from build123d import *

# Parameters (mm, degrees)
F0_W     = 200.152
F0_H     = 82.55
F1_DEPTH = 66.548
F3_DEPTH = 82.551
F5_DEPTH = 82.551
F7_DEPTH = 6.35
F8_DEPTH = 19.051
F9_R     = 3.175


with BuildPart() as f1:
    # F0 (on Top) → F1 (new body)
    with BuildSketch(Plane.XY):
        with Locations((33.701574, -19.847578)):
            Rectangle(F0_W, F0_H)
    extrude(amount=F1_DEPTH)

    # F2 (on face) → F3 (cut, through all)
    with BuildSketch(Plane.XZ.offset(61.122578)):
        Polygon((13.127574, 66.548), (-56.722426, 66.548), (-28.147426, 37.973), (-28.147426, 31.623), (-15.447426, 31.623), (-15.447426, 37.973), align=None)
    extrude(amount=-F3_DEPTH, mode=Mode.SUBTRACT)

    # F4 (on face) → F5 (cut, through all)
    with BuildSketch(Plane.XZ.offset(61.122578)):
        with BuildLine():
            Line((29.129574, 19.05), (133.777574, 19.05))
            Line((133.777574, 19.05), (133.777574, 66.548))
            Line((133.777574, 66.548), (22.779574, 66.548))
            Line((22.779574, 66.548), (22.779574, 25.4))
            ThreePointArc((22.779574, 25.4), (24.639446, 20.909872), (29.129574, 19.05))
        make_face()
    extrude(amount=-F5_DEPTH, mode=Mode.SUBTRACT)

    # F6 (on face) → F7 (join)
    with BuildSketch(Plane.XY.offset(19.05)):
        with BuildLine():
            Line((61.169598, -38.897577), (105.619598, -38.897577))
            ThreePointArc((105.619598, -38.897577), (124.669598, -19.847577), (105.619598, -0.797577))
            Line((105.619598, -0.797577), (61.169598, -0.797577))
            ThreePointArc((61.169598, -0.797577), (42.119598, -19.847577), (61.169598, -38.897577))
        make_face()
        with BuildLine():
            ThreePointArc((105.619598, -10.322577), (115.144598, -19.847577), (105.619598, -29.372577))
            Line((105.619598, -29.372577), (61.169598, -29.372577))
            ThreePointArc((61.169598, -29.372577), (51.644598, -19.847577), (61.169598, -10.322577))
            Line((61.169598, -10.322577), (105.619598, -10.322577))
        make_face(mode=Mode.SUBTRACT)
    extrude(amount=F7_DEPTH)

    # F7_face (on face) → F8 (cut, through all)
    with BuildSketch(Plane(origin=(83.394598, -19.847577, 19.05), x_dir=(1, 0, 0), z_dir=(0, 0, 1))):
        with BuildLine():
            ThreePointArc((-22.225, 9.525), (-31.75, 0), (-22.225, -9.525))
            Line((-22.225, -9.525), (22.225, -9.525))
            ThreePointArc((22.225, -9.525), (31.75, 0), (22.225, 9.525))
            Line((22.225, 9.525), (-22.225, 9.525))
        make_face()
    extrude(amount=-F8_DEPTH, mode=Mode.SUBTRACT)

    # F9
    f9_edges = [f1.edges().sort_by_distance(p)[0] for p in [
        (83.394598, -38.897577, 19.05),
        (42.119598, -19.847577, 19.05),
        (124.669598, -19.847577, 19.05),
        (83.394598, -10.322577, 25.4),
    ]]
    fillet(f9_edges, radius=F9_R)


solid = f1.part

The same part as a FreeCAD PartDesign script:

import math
import FreeCAD as App
import Part
import Sketcher
Q = App.Units.Quantity


def edges_at(feature, points):
    """Names of the edges that pass closest to the given points."""
    edges = feature.Shape.Edges
    near = lambda p: min(range(len(edges)), key=lambda i: edges[i].distToShape(Part.Vertex(*p))[0])
    return sorted({f"Edge{near(p) + 1}" for p in points})


def add_polygon(sketch, points):
    """Adds a closed chain of lines whose ends are joined by coincident constraints."""
    first, n = sketch.GeometryCount, len(points)
    for a, b in zip(points, points[1:] + points[:1]):
        sketch.addGeometry(Part.LineSegment(App.Vector(*a, 0), App.Vector(*b, 0)), False)
    for i in range(n):
        sketch.addConstraint(Sketcher.Constraint("Coincident", first + i, 2, first + (i + 1) % n, 1))

doc = App.newDocument("Part")
params = doc.addObject("Spreadsheet::Sheet", "Params")
for row, (alias, value) in enumerate([
    ("sketch1_width", "7.88 in"),
    ("sketch1_height", "3.25 in"),
    ("pad1_length", "2.62 in"),
    ("sketch2_width", "0.5 in"),
    ("sketch2_width2", "2.75 in"),
    ("sketch2_height", "0.25 in"),
    ("sketch3_radius", "0.25 in"),
    ("sketch3_width", "4.12 in"),
    ("sketch3_height", "1.87 in"),
    ("sketch4_radius", "0.75 in"),
    ("sketch4_radius2", "0.375 in"),
    ("sketch4_width", "1.75 in"),
    ("pad2_length", "0.25 in"),
    ("sketch5_radius", "0.375 in"),
    ("sketch5_width", "1.75 in"),
    ("fillet_radius", "0.125 in"),
], start=1):
    params.set(f"A{row}", alias)
    params.set(f"B{row}", "=" + value)
    params.setAlias(f"B{row}", alias)

body = doc.addObject("PartDesign::Body", "Body")

# Sketch on XY plane
sketch1 = body.newObject("Sketcher::SketchObject", "Sketch")
sketch1.AttachmentSupport = (doc.getObject("XY_Plane"), [""])
sketch1.MapMode = "FlatFace"
add_polygon(sketch1, [(-66, 21), (-66, -61), (134, -61), (134, 21)])  # lines 0-3
sketch1.addConstraint([
    Sketcher.Constraint("Vertical", 0),
    Sketcher.Constraint("Horizontal", 1),
    Sketcher.Constraint("Vertical", 2),
    Sketcher.Constraint("Horizontal", 3),
    Sketcher.Constraint("DistanceX", 1, 1, 1, 2, Q("7.88 in")),
    Sketcher.Constraint("DistanceY", 0, 2, 0, 1, Q("3.25 in")),
    Sketcher.Constraint("DistanceY", -1, 1, 2, 2, 21.427422),
    Sketcher.Constraint("DistanceX", 0, 2, -1, 1, 66.374426),
])
sketch1.setExpression("Constraints[8]", "Params.sketch1_width")
sketch1.setExpression("Constraints[9]", "Params.sketch1_height")
pad1 = body.newObject("PartDesign::Pad", "Pad")
pad1.Profile = sketch1
pad1.setExpression("Length", "Params.pad1_length")

# Sketch on XZ plane
sketch2 = body.newObject("Sketcher::SketchObject", "Sketch001")
sketch2.AttachmentSupport = (doc.getObject("XZ_Plane"), [""])
sketch2.MapMode = "FlatFace"
sketch2.AttachmentOffset = App.Placement(App.Vector(0, 0, 61.122578), App.Rotation())
add_polygon(sketch2, [(13, 67), (-57, 67), (-28, 38), (-28, 32), (-15, 32), (-15, 38)])  # lines 0-5
sketch2.addConstraint([
    Sketcher.Constraint("Horizontal", 0),
    Sketcher.Constraint("Vertical", 2),
    Sketcher.Constraint("Horizontal", 3),
    Sketcher.Constraint("Vertical", 4),
    Sketcher.Constraint("Perpendicular", 1, 5),
    Sketcher.Constraint("Horizontal", 1, 2, 4, 2),
    Sketcher.Constraint("Equal", 1, 5),
    Sketcher.Constraint("DistanceX", 3, 1, 3, 2, Q("0.5 in")),
    Sketcher.Constraint("DistanceX", 0, 2, 0, 1, Q("2.75 in")),
    Sketcher.Constraint("DistanceY", 2, 2, 2, 1, Q("0.25 in")),
    Sketcher.Constraint("DistanceY", -1, 1, 0, 2, Q("2.62 in")),
    Sketcher.Constraint("DistanceX", 0, 2, -1, 1, 56.722426),
])
sketch2.setExpression("Constraints[13]", "Params.sketch2_width")
sketch2.setExpression("Constraints[14]", "Params.sketch2_width2")
sketch2.setExpression("Constraints[15]", "Params.sketch2_height")
pocket1 = body.newObject("PartDesign::Pocket", "Pocket")
pocket1.Profile = sketch2
pocket1.Type = "ThroughAll"

# Sketch on XZ plane
sketch3 = body.newObject("Sketcher::SketchObject", "Sketch002")
sketch3.AttachmentSupport = (doc.getObject("XZ_Plane"), [""])
sketch3.MapMode = "FlatFace"
sketch3.AttachmentOffset = App.Placement(App.Vector(0, 0, 61.122578), App.Rotation())
sketch3.addGeometry([
    Part.LineSegment(App.Vector(29, 19, 0), App.Vector(134, 19, 0)),  # 0
    Part.LineSegment(App.Vector(134, 19, 0), App.Vector(134, 67, 0)),  # 1
    Part.LineSegment(App.Vector(134, 67, 0), App.Vector(23, 67, 0)),  # 2
    Part.LineSegment(App.Vector(23, 67, 0), App.Vector(23, 25, 0)),  # 3
    Part.ArcOfCircle(Part.Circle(App.Vector(29, 25, 0), App.Vector(0, 0, 1), 6), math.radians(-180), math.radians(-90)),  # 4
], False)
sketch3.addConstraint([
    Sketcher.Constraint("Coincident", 0, 2, 1, 1),
    Sketcher.Constraint("Coincident", 1, 2, 2, 1),
    Sketcher.Constraint("Coincident", 2, 2, 3, 1),
    Sketcher.Constraint("Tangent", 3, 2, 4, 1),
    Sketcher.Constraint("Tangent", 4, 2, 0, 1),
    Sketcher.Constraint("Horizontal", 0),
    Sketcher.Constraint("Vertical", 1),
    Sketcher.Constraint("Horizontal", 2),
    Sketcher.Constraint("Vertical", 3),
    Sketcher.Constraint("Radius", 4, Q("0.25 in")),
    Sketcher.Constraint("DistanceY", -1, 1, 4, 3, Q("1 in")),
    Sketcher.Constraint("DistanceX", 0, 1, 0, 2, Q("4.12 in")),
    Sketcher.Constraint("DistanceY", 1, 1, 1, 2, Q("1.87 in")),
    Sketcher.Constraint("DistanceX", -1, 1, 4, 3, 29.129574),
])
sketch3.setExpression("Constraints[9]", "Params.sketch3_radius")
sketch3.setExpression("Constraints[11]", "Params.sketch3_width")
sketch3.setExpression("Constraints[12]", "Params.sketch3_height")
pocket2 = body.newObject("PartDesign::Pocket", "Pocket001")
pocket2.Profile = sketch3
pocket2.Type = "ThroughAll"

# Sketch on XY plane
sketch4 = body.newObject("Sketcher::SketchObject", "Sketch003")
sketch4.AttachmentSupport = (doc.getObject("XY_Plane"), [""])
sketch4.MapMode = "FlatFace"
sketch4.AttachmentOffset = App.Placement(App.Vector(0, 0, 0.75 * 25.4), App.Rotation())
sketch4.addGeometry([
    Part.LineSegment(App.Vector(61, -39, 0), App.Vector(106, -39, 0)),  # 0
    Part.ArcOfCircle(Part.Circle(App.Vector(106, -20, 0), App.Vector(0, 0, 1), 19), math.radians(-90), math.radians(90)),  # 1
    Part.LineSegment(App.Vector(106, -1, 0), App.Vector(61, -1, 0)),  # 2
    Part.ArcOfCircle(Part.Circle(App.Vector(61, -20, 0), App.Vector(0, 0, 1), 19), math.radians(90), math.radians(270)),  # 3
    Part.LineSegment(App.Vector(61, -10, 0), App.Vector(106, -10, 0)),  # 4
    Part.ArcOfCircle(Part.Circle(App.Vector(106, -20, 0), App.Vector(0, 0, 1), 10), math.radians(-90), math.radians(90)),  # 5
    Part.LineSegment(App.Vector(106, -29, 0), App.Vector(61, -29, 0)),  # 6
    Part.ArcOfCircle(Part.Circle(App.Vector(61, -20, 0), App.Vector(0, 0, 1), 10), math.radians(90), math.radians(270)),  # 7
], False)
sketch4.addConstraint([
    Sketcher.Constraint("Tangent", 0, 2, 1, 1),
    Sketcher.Constraint("Tangent", 1, 2, 2, 1),
    Sketcher.Constraint("Tangent", 2, 2, 3, 1),
    Sketcher.Constraint("Tangent", 3, 2, 0, 1),
    Sketcher.Constraint("Tangent", 4, 2, 5, 2),
    Sketcher.Constraint("Tangent", 5, 1, 6, 1),
    Sketcher.Constraint("Tangent", 6, 2, 7, 2),
    Sketcher.Constraint("Tangent", 7, 1, 4, 1),
    Sketcher.Constraint("Horizontal", 0),
    Sketcher.Constraint("Horizontal", 2),
    Sketcher.Constraint("Horizontal", 4),
    Sketcher.Constraint("Horizontal", 6),
    Sketcher.Constraint("Coincident", 5, 3, 1, 3),
    Sketcher.Constraint("Vertical", 7, 3, 2, 2),
    Sketcher.Constraint("Radius", 1, Q("0.75 in")),
    Sketcher.Constraint("Radius", 5, Q("0.375 in")),
    Sketcher.Constraint("DistanceX", 0, 1, 0, 2, Q("1.75 in")),
    Sketcher.Constraint("DistanceX", -1, 1, 1, 3, 105.619598),
    Sketcher.Constraint("DistanceY", 1, 3, -1, 1, 19.847577),
])
sketch4.setExpression("Constraints[14]", "Params.sketch4_radius")
sketch4.setExpression("Constraints[15]", "Params.sketch4_radius2")
sketch4.setExpression("Constraints[16]", "Params.sketch4_width")
pad2 = body.newObject("PartDesign::Pad", "Pad001")
pad2.Profile = sketch4
pad2.setExpression("Length", "Params.pad2_length")

# Sketch on XY plane
sketch5 = body.newObject("Sketcher::SketchObject", "Sketch004")
sketch5.AttachmentSupport = (doc.getObject("XY_Plane"), [""])
sketch5.MapMode = "FlatFace"
sketch5.AttachmentOffset = App.Placement(App.Vector(0, 0, 0.75 * 25.4), App.Rotation())
sketch5.addGeometry([
    Part.ArcOfCircle(Part.Circle(App.Vector(61, -20, 0), App.Vector(0, 0, 1), 10), math.radians(90), math.radians(270)),
    Part.LineSegment(App.Vector(61, -29, 0), App.Vector(106, -29, 0)),
    Part.ArcOfCircle(Part.Circle(App.Vector(106, -20, 0), App.Vector(0, 0, 1), 10), math.radians(-90), math.radians(90)),
    Part.LineSegment(App.Vector(106, -10, 0), App.Vector(61, -10, 0)),
], False)
sketch5.addConstraint([
    Sketcher.Constraint("Tangent", 0, 2, 1, 1),
    Sketcher.Constraint("Tangent", 1, 2, 2, 1),
    Sketcher.Constraint("Tangent", 2, 2, 3, 1),
    Sketcher.Constraint("Tangent", 3, 2, 0, 1),
    Sketcher.Constraint("Horizontal", 1),
    Sketcher.Constraint("Horizontal", 3),
    Sketcher.Constraint("Radius", 0, Q("0.375 in")),
    Sketcher.Constraint("DistanceX", 1, 1, 1, 2, Q("1.75 in")),
    Sketcher.Constraint("DistanceX", -1, 1, 0, 3, 61.169598),
    Sketcher.Constraint("DistanceY", 0, 3, -1, 1, 19.847577),
])
sketch5.setExpression("Constraints[6]", "Params.sketch5_radius")
sketch5.setExpression("Constraints[7]", "Params.sketch5_width")
pocket3 = body.newObject("PartDesign::Pocket", "Pocket002")
pocket3.Profile = sketch5
pocket3.Type = "ThroughAll"
doc.recompute()

fillet = body.newObject("PartDesign::Fillet", "Fillet")
fillet.Base = (pocket3, edges_at(pocket3, [
    (83.395, -38.898, 19.05),
    (42.12, -19.848, 19.05),
    (124.67, -19.848, 19.05),
    (83.395, -10.323, 25.4),
]))
fillet.setExpression("Radius", "Params.fillet_radius")

doc.recompute()
